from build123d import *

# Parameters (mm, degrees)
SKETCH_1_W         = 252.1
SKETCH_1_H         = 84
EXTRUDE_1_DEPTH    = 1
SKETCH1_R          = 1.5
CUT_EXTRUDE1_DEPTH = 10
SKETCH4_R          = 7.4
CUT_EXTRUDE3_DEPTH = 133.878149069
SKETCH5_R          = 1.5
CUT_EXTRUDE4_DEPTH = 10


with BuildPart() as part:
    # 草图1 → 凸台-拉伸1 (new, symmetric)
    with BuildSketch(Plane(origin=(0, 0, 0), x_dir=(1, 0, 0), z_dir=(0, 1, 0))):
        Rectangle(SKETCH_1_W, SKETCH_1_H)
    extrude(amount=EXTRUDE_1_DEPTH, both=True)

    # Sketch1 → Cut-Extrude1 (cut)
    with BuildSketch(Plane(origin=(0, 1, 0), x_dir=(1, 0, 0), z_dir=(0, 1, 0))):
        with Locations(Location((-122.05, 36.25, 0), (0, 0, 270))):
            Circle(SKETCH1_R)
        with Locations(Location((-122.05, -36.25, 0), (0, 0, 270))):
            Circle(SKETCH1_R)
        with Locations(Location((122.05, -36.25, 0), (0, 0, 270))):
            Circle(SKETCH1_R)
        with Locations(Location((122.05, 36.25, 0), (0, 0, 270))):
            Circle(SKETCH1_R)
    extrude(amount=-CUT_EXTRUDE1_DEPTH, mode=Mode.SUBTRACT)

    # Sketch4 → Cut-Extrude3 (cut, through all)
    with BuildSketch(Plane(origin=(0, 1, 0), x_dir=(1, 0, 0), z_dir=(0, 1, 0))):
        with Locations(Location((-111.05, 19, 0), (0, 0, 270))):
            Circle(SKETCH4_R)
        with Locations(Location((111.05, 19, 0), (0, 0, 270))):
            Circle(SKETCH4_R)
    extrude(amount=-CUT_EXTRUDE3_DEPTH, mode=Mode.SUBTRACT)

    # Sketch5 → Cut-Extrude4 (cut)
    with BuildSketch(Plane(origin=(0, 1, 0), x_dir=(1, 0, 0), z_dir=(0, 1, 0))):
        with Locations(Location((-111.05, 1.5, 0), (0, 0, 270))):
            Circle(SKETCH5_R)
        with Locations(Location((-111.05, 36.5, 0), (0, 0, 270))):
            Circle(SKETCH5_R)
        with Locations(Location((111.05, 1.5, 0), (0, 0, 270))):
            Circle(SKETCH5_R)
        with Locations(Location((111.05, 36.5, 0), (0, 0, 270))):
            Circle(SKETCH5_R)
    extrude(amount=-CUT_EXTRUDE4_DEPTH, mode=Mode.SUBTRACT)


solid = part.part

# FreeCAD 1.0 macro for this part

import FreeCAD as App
import Part
import Sketcher
from FreeCAD import Vector
Q = App.Units.Quantity

doc = App.newDocument("Part")
params = doc.addObject("Spreadsheet::Sheet", "Params")
for row, (alias, value) in enumerate([
    ("sketch1_height", "84 mm"),
    ("sketch1_width", "252.1 mm"),
    ("pad1_length", "2 mm"),
    ("sketch2_diameter", "3 mm"),
    ("pocket1_length", "10 mm"),
    ("sketch3_diameter", "14.8 mm"),
    ("sketch4_diameter", "3 mm"),
    ("pocket3_length", "10 mm"),
], start=1):
    params.set(f"A{row}", alias)
    params.set(f"B{row}", "=" + value)
    params.setAlias(f"B{row}", alias)

body = doc.addObject("PartDesign::Body", "Body")

sketch1 = body.newObject("Sketcher::SketchObject", "Sketch")
sketch1.AttachmentSupport = (doc.getObject("XZ_Plane"), [""])
sketch1.MapMode = "FlatFace"
sketch1.addGeometry(Part.LineSegment(Vector(-126.05, -42, 0), Vector(-126.05, 42, 0)), False)
sketch1.addGeometry(Part.LineSegment(Vector(-126.05, 42, 0), Vector(126.05, 42, 0)), False)
sketch1.addGeometry(Part.LineSegment(Vector(126.05, 42, 0), Vector(126.05, -42, 0)), False)
sketch1.addGeometry(Part.LineSegment(Vector(126.05, -42, 0), Vector(-126.05, -42, 0)), False)
sketch1.addConstraint(Sketcher.Constraint("Coincident", 0, 2, 1, 1))
sketch1.addConstraint(Sketcher.Constraint("Coincident", 1, 2, 2, 1))
sketch1.addConstraint(Sketcher.Constraint("Coincident", 2, 2, 3, 1))
sketch1.addConstraint(Sketcher.Constraint("Coincident", 3, 2, 0, 1))
sketch1.addConstraint(Sketcher.Constraint("Vertical", 0))
sketch1.addConstraint(Sketcher.Constraint("Horizontal", 1))
sketch1.addConstraint(Sketcher.Constraint("Vertical", 2))
sketch1.addConstraint(Sketcher.Constraint("Horizontal", 3))
sketch1.addConstraint(Sketcher.Constraint("Symmetric", 0, 2, 2, 2, -1, 1))
sketch1.addConstraint(Sketcher.Constraint("DistanceY", 0, 1, 0, 2, Q("84 mm")))
sketch1.addConstraint(Sketcher.Constraint("DistanceX", 1, 1, 1, 2, Q("252.1 mm")))
sketch1.setExpression("Constraints[9]", "Params.sketch1_height")
sketch1.setExpression("Constraints[10]", "Params.sketch1_width")
pad1 = body.newObject("PartDesign::Pad", "Pad")
pad1.Profile = sketch1
pad1.setExpression("Length", "Params.pad1_length")
pad1.Midplane = True

sketch2 = body.newObject("Sketcher::SketchObject", "Sketch001")
sketch2.AttachmentSupport = (doc.getObject("XZ_Plane"), [""])
sketch2.MapMode = "FlatFace"
sketch2.AttachmentOffset = App.Placement(Vector(0, 0, -1), App.Rotation())
sketch2.addGeometry(Part.Circle(Vector(-122.05, -36.25, 0), Vector(0, 0, 1), 1.5), False)
sketch2.addGeometry(Part.Circle(Vector(-122.05, 36.25, 0), Vector(0, 0, 1), 1.5), False)
sketch2.addGeometry(Part.Circle(Vector(122.05, 36.25, 0), Vector(0, 0, 1), 1.5), False)
sketch2.addGeometry(Part.Circle(Vector(122.05, -36.25, 0), Vector(0, 0, 1), 1.5), False)
sketch2.addConstraint(Sketcher.Constraint("Equal", 0, 1))
sketch2.addConstraint(Sketcher.Constraint("Equal", 1, 2))
sketch2.addConstraint(Sketcher.Constraint("Equal", 2, 3))
sketch2.addConstraint(Sketcher.Constraint("Symmetric", 0, 3, 2, 3, -1, 1))
sketch2.addConstraint(Sketcher.Constraint("Symmetric", 1, 3, 3, 3, -1, 1))
sketch2.addConstraint(Sketcher.Constraint("Symmetric", 1, 3, 2, 3, -2))
sketch2.addConstraint(Sketcher.Constraint("Diameter", 0, Q("3 mm")))
sketch2.addConstraint(Sketcher.Constraint("DistanceY", 0, 3, 1, 3, Q("72.5 mm")))
sketch2.addConstraint(Sketcher.Constraint("DistanceX", 1, 3, 2, 3, Q("244.1 mm")))
sketch2.setExpression("Constraints[6]", "Params.sketch2_diameter")
pocket1 = body.newObject("PartDesign::Pocket", "Pocket")
pocket1.Profile = sketch2
pocket1.setExpression("Length", "Params.pocket1_length")
pocket1.Reversed = True

sketch3 = body.newObject("Sketcher::SketchObject", "Sketch002")
sketch3.AttachmentSupport = (doc.getObject("XZ_Plane"), [""])
sketch3.MapMode = "FlatFace"
sketch3.AttachmentOffset = App.Placement(Vector(0, 0, -1), App.Rotation())
sketch3.addGeometry(Part.Circle(Vector(-111.05, -19, 0), Vector(0, 0, 1), 7.4), False)
sketch3.addGeometry(Part.Circle(Vector(111.05, -19, 0), Vector(0, 0, 1), 7.4), False)
sketch3.addConstraint(Sketcher.Constraint("Equal", 0, 1))
sketch3.addConstraint(Sketcher.Constraint("Symmetric", 0, 3, 1, 3, -2))
sketch3.addConstraint(Sketcher.Constraint("Diameter", 0, Q("14.8 mm")))
sketch3.addConstraint(Sketcher.Constraint("DistanceY", 0, 3, -1, 1, Q("19 mm")))
sketch3.addConstraint(Sketcher.Constraint("DistanceX", 0, 3, 1, 3, Q("222.1 mm")))
sketch3.setExpression("Constraints[2]", "Params.sketch3_diameter")
pocket2 = body.newObject("PartDesign::Pocket", "Pocket001")
pocket2.Profile = sketch3
pocket2.Type = "ThroughAll"
pocket2.Reversed = True

sketch4 = body.newObject("Sketcher::SketchObject", "Sketch003")
sketch4.AttachmentSupport = (doc.getObject("XZ_Plane"), [""])
sketch4.MapMode = "FlatFace"
sketch4.AttachmentOffset = App.Placement(Vector(0, 0, -1), App.Rotation())
sketch4.addGeometry(Part.Circle(Vector(-111.05, -1.5, 0), Vector(0, 0, 1), 1.5), False)
sketch4.addGeometry(Part.Circle(Vector(-111.05, -36.5, 0), Vector(0, 0, 1), 1.5), False)
sketch4.addGeometry(Part.Circle(Vector(111.05, -1.5, 0), Vector(0, 0, 1), 1.5), False)
sketch4.addGeometry(Part.Circle(Vector(111.05, -36.5, 0), Vector(0, 0, 1), 1.5), False)
sketch4.addConstraint(Sketcher.Constraint("Equal", 0, 1))
sketch4.addConstraint(Sketcher.Constraint("Equal", 1, 2))
sketch4.addConstraint(Sketcher.Constraint("Equal", 2, 3))
sketch4.addConstraint(Sketcher.Constraint("Symmetric", 0, 3, 2, 3, -2))
sketch4.addConstraint(Sketcher.Constraint("Symmetric", 1, 3, 3, 3, -2))
sketch4.addConstraint(Sketcher.Constraint("Vertical", 0, 3, 1, 3))
sketch4.addConstraint(Sketcher.Constraint("Diameter", 0, Q("3 mm")))
sketch4.addConstraint(Sketcher.Constraint("DistanceY", 1, 3, 0, 3, Q("35 mm")))
sketch4.addConstraint(Sketcher.Constraint("DistanceY", 0, 3, -1, 1, Q("1.5 mm")))
sketch4.addConstraint(Sketcher.Constraint("DistanceX", 0, 3, 2, 3, Q("222.1 mm")))
sketch4.setExpression("Constraints[6]", "Params.sketch4_diameter")
pocket3 = body.newObject("PartDesign::Pocket", "Pocket002")
pocket3.Profile = sketch4
pocket3.setExpression("Length", "Params.pocket3_length")
pocket3.Reversed = True

doc.recompute()
